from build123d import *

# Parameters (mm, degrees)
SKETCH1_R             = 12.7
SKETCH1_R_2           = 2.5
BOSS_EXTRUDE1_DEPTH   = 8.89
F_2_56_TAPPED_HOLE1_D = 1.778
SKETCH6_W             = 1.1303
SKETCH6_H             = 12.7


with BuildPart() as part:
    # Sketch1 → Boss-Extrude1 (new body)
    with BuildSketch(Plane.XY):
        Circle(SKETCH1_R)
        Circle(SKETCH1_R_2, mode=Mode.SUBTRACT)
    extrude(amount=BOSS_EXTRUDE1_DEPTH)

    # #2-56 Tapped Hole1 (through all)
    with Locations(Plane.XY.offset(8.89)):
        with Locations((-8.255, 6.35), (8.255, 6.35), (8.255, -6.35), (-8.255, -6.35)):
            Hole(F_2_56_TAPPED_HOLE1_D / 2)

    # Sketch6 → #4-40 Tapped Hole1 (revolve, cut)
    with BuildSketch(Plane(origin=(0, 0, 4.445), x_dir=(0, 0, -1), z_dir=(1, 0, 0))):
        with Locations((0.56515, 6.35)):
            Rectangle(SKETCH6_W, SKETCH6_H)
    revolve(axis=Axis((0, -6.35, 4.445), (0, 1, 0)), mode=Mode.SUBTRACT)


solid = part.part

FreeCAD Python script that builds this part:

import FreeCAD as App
import Part
import Sketcher
Q = App.Units.Quantity

doc = App.newDocument("Part")
body = doc.addObject("PartDesign::Body", "Body")

sketch1 = body.newObject("Sketcher::SketchObject", "Sketch")
sketch1.AttachmentSupport = (doc.getObject("XY_Plane"), [""])
sketch1.MapMode = "FlatFace"
sketch1.addGeometry([
    Part.Circle(App.Vector(0, 0, 0), App.Vector(0, 0, 1), 12.7),
    Part.Circle(App.Vector(0, 0, 0), App.Vector(0, 0, 1), 2.5),
], False)
sketch1.addConstraint([
    Sketcher.Constraint("Coincident", 0, 3, -1, 1),
    Sketcher.Constraint("Coincident", 1, 3, -1, 1),
    Sketcher.Constraint("Diameter", 0, Q("1 in")),
    Sketcher.Constraint("Diameter", 1, Q("5 mm")),
])
pad1 = body.newObject("PartDesign::Pad", "Pad")
pad1.Profile = sketch1
pad1.Length = Q("0.35 in")

sketch2 = body.newObject("Sketcher::SketchObject", "Sketch001")
sketch2.AttachmentSupport = (doc.getObject("XY_Plane"), [""])
sketch2.MapMode = "FlatFace"
sketch2.AttachmentOffset = App.Placement(App.Vector(0, 0, 0.35 * 25.4), App.Rotation())
sketch2.addGeometry([
    Part.Circle(App.Vector(-8.3, 6.3, 0), App.Vector(0, 0, 1), 0.9),
    Part.Circle(App.Vector(8.3, 6.3, 0), App.Vector(0, 0, 1), 0.9),
    Part.Circle(App.Vector(8.3, -6.3, 0), App.Vector(0, 0, 1), 0.9),
    Part.Circle(App.Vector(-8.3, -6.3, 0), App.Vector(0, 0, 1), 0.9),
], False)
sketch2.addConstraint([
    Sketcher.Constraint("Equal", 0, 1),
    Sketcher.Constraint("Equal", 1, 2),
    Sketcher.Constraint("Equal", 2, 3),
    Sketcher.Constraint("Symmetric", 0, 3, 2, 3, -1, 1),
    Sketcher.Constraint("Symmetric", 1, 3, 3, 3, -1, 1),
    Sketcher.Constraint("Symmetric", 0, 3, 1, 3, -2),
    Sketcher.Constraint("Diameter", 0, Q("0.07 in")),
    Sketcher.Constraint("DistanceY", 2, 3, 1, 3, Q("0.5 in")),
    Sketcher.Constraint("DistanceX", 0, 3, 1, 3, Q("0.65 in")),
])
doc.recompute()
hole = body.newObject("PartDesign::Hole", "Hole")
hole.Profile = sketch2
hole.ThreadType = "None"
hole.Diameter = Q("0.07 in")
hole.DepthType = "ThroughAll"

sketch3 = body.newObject("Sketcher::SketchObject", "Sketch002")
sketch3.AttachmentSupport = (doc.getObject("YZ_Plane"), [""])
sketch3.MapMode = "FlatFace"
sketch3.addGeometry([
    Part.LineSegment(App.Vector(12.7, 4.4, 0), App.Vector(0, 4.4, 0)),
    Part.LineSegment(App.Vector(0, 4.4, 0), App.Vector(0, 3.3, 0)),
    Part.LineSegment(App.Vector(0, 3.3, 0), App.Vector(12.7, 3.3, 0)),
    Part.LineSegment(App.Vector(12.7, 3.3, 0), App.Vector(12.7, 4.4, 0)),
], False)
sketch3.addGeometry(Part.LineSegment(App.Vector(0, 4.4, 0), App.Vector(12.7, 4.4, 0)), True)
sketch3.addConstraint([
    Sketcher.Constraint("Coincident", 0, 2, 1, 1),
    Sketcher.Constraint("Coincident", 1, 2, 2, 1),
    Sketcher.Constraint("Coincident", 2, 2, 3, 1),
    Sketcher.Constraint("Coincident", 3, 2, 0, 1),
    Sketcher.Constraint("Horizontal", 0),
    Sketcher.Constraint("Vertical", 1),
    Sketcher.Constraint("Horizontal", 2),
    Sketcher.Constraint("Vertical", 3),
    Sketcher.Constraint("Horizontal", 4),
    Sketcher.Constraint("Coincident", 4, 1, 0, 2),
    Sketcher.Constraint("PointOnObject", 0, 2, -2),
    Sketcher.Constraint("Vertical", 2, 2, 4, 2),
    Sketcher.Constraint("DistanceX", 0, 2, 0, 1, Q("0.5 in")),
    Sketcher.Constraint("DistanceY", 1, 2, 1, 1, Q("0.0445 in")),
    Sketcher.Constraint("DistanceY", -1, 1, 0, 2, Q("0.175 in")),
])
groove = body.newObject("PartDesign::Groove", "Groove")
groove.Profile = sketch3
groove.ReferenceAxis = (sketch3, ["Axis0"])
groove.Angle = 360

doc.recompute()
